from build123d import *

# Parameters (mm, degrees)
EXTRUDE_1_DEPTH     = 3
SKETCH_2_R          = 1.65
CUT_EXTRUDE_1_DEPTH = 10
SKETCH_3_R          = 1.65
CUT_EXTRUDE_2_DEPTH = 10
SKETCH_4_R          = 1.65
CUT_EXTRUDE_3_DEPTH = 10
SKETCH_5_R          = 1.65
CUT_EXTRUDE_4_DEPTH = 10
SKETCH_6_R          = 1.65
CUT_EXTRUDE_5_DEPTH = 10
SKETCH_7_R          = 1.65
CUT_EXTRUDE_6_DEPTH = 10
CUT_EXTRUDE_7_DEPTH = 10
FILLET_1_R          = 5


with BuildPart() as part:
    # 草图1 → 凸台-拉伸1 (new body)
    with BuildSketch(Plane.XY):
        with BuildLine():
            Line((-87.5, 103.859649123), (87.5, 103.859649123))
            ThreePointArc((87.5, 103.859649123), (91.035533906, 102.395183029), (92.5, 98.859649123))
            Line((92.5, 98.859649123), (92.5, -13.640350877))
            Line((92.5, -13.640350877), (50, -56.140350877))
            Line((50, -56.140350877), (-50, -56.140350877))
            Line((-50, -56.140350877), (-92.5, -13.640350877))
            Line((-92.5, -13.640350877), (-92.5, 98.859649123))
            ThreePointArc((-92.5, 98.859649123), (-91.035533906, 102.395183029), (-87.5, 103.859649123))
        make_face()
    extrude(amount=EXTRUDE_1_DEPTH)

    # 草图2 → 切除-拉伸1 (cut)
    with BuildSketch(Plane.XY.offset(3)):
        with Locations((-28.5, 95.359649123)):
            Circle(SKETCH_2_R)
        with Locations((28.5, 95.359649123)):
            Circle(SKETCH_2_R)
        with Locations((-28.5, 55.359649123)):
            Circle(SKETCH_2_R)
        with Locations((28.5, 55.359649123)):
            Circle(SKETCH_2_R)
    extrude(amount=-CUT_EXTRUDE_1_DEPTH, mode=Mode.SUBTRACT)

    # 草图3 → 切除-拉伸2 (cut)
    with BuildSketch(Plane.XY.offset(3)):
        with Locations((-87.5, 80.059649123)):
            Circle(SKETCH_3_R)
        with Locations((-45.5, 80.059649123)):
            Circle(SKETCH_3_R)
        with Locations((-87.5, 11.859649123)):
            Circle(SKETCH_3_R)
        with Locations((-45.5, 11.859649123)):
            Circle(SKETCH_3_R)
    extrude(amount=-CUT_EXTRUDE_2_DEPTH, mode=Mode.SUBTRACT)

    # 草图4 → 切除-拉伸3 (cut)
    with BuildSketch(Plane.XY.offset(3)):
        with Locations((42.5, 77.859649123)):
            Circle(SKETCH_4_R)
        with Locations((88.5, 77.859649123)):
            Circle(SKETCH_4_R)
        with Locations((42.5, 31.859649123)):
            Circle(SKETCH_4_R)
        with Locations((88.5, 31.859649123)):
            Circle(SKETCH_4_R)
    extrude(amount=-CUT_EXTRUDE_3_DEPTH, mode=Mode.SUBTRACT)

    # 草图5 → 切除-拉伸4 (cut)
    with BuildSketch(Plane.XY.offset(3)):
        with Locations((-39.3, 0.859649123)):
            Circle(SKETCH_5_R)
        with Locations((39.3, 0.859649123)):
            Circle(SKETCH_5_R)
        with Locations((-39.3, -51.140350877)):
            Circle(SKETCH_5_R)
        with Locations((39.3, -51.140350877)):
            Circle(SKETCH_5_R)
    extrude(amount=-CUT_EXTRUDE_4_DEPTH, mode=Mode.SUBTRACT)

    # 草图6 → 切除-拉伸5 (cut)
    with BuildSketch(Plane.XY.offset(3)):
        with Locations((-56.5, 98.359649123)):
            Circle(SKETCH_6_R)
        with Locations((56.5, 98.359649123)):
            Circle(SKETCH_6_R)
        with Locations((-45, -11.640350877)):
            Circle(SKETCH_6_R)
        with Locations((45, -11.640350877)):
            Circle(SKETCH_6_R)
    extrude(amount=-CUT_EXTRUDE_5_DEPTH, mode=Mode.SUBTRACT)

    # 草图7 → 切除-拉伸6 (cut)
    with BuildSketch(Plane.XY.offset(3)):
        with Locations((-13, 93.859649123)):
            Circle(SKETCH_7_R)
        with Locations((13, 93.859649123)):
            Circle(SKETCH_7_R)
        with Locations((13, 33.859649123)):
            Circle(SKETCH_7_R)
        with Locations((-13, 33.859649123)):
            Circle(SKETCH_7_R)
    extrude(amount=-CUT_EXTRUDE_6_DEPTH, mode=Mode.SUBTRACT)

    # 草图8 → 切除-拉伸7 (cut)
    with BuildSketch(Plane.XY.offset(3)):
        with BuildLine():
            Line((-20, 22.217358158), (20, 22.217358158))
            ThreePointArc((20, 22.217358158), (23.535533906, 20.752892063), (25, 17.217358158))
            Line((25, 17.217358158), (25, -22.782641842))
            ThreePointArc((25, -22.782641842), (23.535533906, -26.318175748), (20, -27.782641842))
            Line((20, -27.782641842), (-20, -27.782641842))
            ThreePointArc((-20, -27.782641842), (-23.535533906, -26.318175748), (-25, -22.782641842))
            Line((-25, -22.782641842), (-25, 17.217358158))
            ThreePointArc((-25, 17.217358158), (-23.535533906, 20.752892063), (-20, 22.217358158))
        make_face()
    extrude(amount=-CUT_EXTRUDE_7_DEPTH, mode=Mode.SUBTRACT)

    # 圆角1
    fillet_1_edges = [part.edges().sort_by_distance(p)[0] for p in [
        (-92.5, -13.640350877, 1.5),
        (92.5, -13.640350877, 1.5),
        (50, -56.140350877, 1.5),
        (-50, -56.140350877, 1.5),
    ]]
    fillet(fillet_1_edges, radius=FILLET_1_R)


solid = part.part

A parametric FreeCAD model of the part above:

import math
import FreeCAD as App
import Part
import Sketcher

V = App.Vector


def edges_at(feature, points):
    """Names of the edges that pass closest to the given points."""
    edges = feature.Shape.Edges
    near = lambda p: min(range(len(edges)), key=lambda i: edges[i].distToShape(Part.Vertex(*p))[0])
    return sorted({f"Edge{near(p) + 1}" for p in points})

doc = App.newDocument("Part")
body = doc.addObject("PartDesign::Body", "Body")

# Sketch on XY plane
sketch1 = doc.addObject("Sketcher::SketchObject", "Sketch")
body.addObject(sketch1)
sketch1.AttachmentSupport = (doc.XY_Plane, [""])
sketch1.MapMode = "FlatFace"
sketch1.addGeometry([
    Part.LineSegment(V(88, 104, 0), V(-88, 104, 0)),  # 0
    Part.ArcOfCircle(Part.Circle(V(-88, 99, 0), V(0, 0, 1), 5), math.radians(90), math.radians(180)),  # 1
    Part.LineSegment(V(-92, 99, 0), V(-92, -14, 0)),  # 2
    Part.LineSegment(V(-92, -14, 0), V(-50, -56, 0)),  # 3
    Part.LineSegment(V(-50, -56, 0), V(50, -56, 0)),  # 4
    Part.LineSegment(V(50, -56, 0), V(92, -14, 0)),  # 5
    Part.LineSegment(V(92, -14, 0), V(92, 99, 0)),  # 6
    Part.ArcOfCircle(Part.Circle(V(88, 99, 0), V(0, 0, 1), 5), math.radians(0), math.radians(90)),  # 7
], False)
sketch1.addConstraint([
    Sketcher.Constraint("Tangent", 0, 2, 1, 1),
    Sketcher.Constraint("Tangent", 1, 2, 2, 1),
    Sketcher.Constraint("Coincident", 2, 2, 3, 1),
    Sketcher.Constraint("Coincident", 3, 2, 4, 1),
    Sketcher.Constraint("Coincident", 4, 2, 5, 1),
    Sketcher.Constraint("Coincident", 5, 2, 6, 1),
    Sketcher.Constraint("Tangent", 6, 2, 7, 1),
    Sketcher.Constraint("Tangent", 7, 2, 0, 1),
    Sketcher.Constraint("Horizontal", 0),
    Sketcher.Constraint("Vertical", 2),
    Sketcher.Constraint("Horizontal", 4),
    Sketcher.Constraint("Vertical", 6),
    Sketcher.Constraint("Equal", 1, 7),
    Sketcher.Constraint("Symmetric", 2, 2, 5, 2, -2),
    Sketcher.Constraint("Perpendicular", 3, 5),
    Sketcher.Constraint("Equal", 3, 5),
    Sketcher.Constraint("Radius", 1, 5.0),
    Sketcher.Constraint("DistanceX", 0, 2, 0, 1, 175.0),
    Sketcher.Constraint("DistanceX", 4, 1, 4, 2, 100.0),
    Sketcher.Constraint("DistanceY", 2, 2, 2, 1, 112.5),
    Sketcher.Constraint("DistanceY", -1, 1, 1, 3, 98.859649),
])
pad1 = doc.addObject("PartDesign::Pad", "Pad")
body.addObject(pad1)
pad1.Profile = sketch1
pad1.Length = 3

# Sketch on XY plane
sketch2 = doc.addObject("Sketcher::SketchObject", "Sketch001")
body.addObject(sketch2)
sketch2.AttachmentSupport = (doc.XY_Plane, [""])
sketch2.MapMode = "FlatFace"
sketch2.AttachmentOffset = App.Placement(V(0, 0, 3), App.Rotation())
sketch2.addGeometry([
    Part.Circle(V(-28.5, 95.4, 0), V(0, 0, 1), 1.6),
    Part.Circle(V(28.5, 95.4, 0), V(0, 0, 1), 1.6),
    Part.Circle(V(-28.5, 55.4, 0), V(0, 0, 1), 1.6),
    Part.Circle(V(28.5, 55.4, 0), V(0, 0, 1), 1.6),
], False)
sketch2.addConstraint([
    Sketcher.Constraint("Equal", 0, 1),
    Sketcher.Constraint("Equal", 1, 2),
    Sketcher.Constraint("Equal", 2, 3),
    Sketcher.Constraint("Symmetric", 0, 3, 1, 3, -2),
    Sketcher.Constraint("Symmetric", 2, 3, 3, 3, -2),
    Sketcher.Constraint("Vertical", 0, 3, 2, 3),
    Sketcher.Constraint("Diameter", 0, 3.3),
    Sketcher.Constraint("DistanceX", 0, 3, 1, 3, 57.0),
    Sketcher.Constraint("DistanceY", 2, 3, 0, 3, 40.0),
    Sketcher.Constraint("DistanceY", -1, 1, 0, 3, 95.359649),
])
pocket1 = doc.addObject("PartDesign::Pocket", "Pocket")
body.addObject(pocket1)
pocket1.Profile = sketch2
pocket1.Length = 10

# Sketch on XY plane
sketch3 = doc.addObject("Sketcher::SketchObject", "Sketch002")
body.addObject(sketch3)
sketch3.AttachmentSupport = (doc.XY_Plane, [""])
sketch3.MapMode = "FlatFace"
sketch3.AttachmentOffset = App.Placement(V(0, 0, 3), App.Rotation())
sketch3.addGeometry([
    Part.Circle(V(-87.5, 80.1, 0), V(0, 0, 1), 1.6),
    Part.Circle(V(-45.5, 80.1, 0), V(0, 0, 1), 1.6),
    Part.Circle(V(-87.5, 11.9, 0), V(0, 0, 1), 1.6),
    Part.Circle(V(-45.5, 11.9, 0), V(0, 0, 1), 1.6),
], False)
sketch3.addConstraint([
    Sketcher.Constraint("Equal", 0, 1),
    Sketcher.Constraint("Equal", 1, 2),
    Sketcher.Constraint("Equal", 2, 3),
    Sketcher.Constraint("Horizontal", 0, 3, 1, 3),
    Sketcher.Constraint("Horizontal", 2, 3, 3, 3),
    Sketcher.Constraint("Vertical", 0, 3, 2, 3),
    Sketcher.Constraint("Vertical", 1, 3, 3, 3),
    Sketcher.Constraint("Diameter", 0, 3.3),
    Sketcher.Constraint("DistanceX", 0, 3, 1, 3, 42.0),
    Sketcher.Constraint("DistanceX", 0, 3, -1, 1, 87.5),
    Sketcher.Constraint("DistanceY", 2, 3, 0, 3, 68.2),
    Sketcher.Constraint("DistanceY", -1, 1, 0, 3, 80.059649),
])
pocket2 = doc.addObject("PartDesign::Pocket", "Pocket001")
body.addObject(pocket2)
pocket2.Profile = sketch3
pocket2.Length = 10

# Sketch on XY plane
sketch4 = doc.addObject("Sketcher::SketchObject", "Sketch003")
body.addObject(sketch4)
sketch4.AttachmentSupport = (doc.XY_Plane, [""])
sketch4.MapMode = "FlatFace"
sketch4.AttachmentOffset = App.Placement(V(0, 0, 3), App.Rotation())
sketch4.addGeometry([
    Part.Circle(V(42.5, 77.9, 0), V(0, 0, 1), 1.6),
    Part.Circle(V(88.5, 77.9, 0), V(0, 0, 1), 1.6),
    Part.Circle(V(42.5, 31.9, 0), V(0, 0, 1), 1.6),
    Part.Circle(V(88.5, 31.9, 0), V(0, 0, 1), 1.6),
], False)
sketch4.addConstraint([
    Sketcher.Constraint("Equal", 0, 1),
    Sketcher.Constraint("Equal", 1, 2),
    Sketcher.Constraint("Equal", 2, 3),
    Sketcher.Constraint("Horizontal", 0, 3, 1, 3),
    Sketcher.Constraint("Horizontal", 2, 3, 3, 3),
    Sketcher.Constraint("Vertical", 0, 3, 2, 3),
    Sketcher.Constraint("Vertical", 1, 3, 3, 3),
    Sketcher.Constraint("Diameter", 0, 3.3),
    Sketcher.Constraint("DistanceX", 0, 3, 1, 3, 46.0),
    Sketcher.Constraint("DistanceY", 2, 3, 0, 3, 46.0),
    Sketcher.Constraint("DistanceX", -1, 1, 0, 3, 42.5),
    Sketcher.Constraint("DistanceY", -1, 1, 0, 3, 77.859649),
])
pocket3 = doc.addObject("PartDesign::Pocket", "Pocket002")
body.addObject(pocket3)
pocket3.Profile = sketch4
pocket3.Length = 10

# Sketch on XY plane
sketch5 = doc.addObject("Sketcher::SketchObject", "Sketch004")
body.addObject(sketch5)
sketch5.AttachmentSupport = (doc.XY_Plane, [""])
sketch5.MapMode = "FlatFace"
sketch5.AttachmentOffset = App.Placement(V(0, 0, 3), App.Rotation())
sketch5.addGeometry([
    Part.Circle(V(-39.3, 0.9, 0), V(0, 0, 1), 1.6),
    Part.Circle(V(39.3, 0.9, 0), V(0, 0, 1), 1.6),
    Part.Circle(V(-39.3, -51.1, 0), V(0, 0, 1), 1.6),
    Part.Circle(V(39.3, -51.1, 0), V(0, 0, 1), 1.6),
], False)
sketch5.addConstraint([
    Sketcher.Constraint("Equal", 0, 1),
    Sketcher.Constraint("Equal", 1, 2),
    Sketcher.Constraint("Equal", 2, 3),
    Sketcher.Constraint("Symmetric", 0, 3, 1, 3, -2),
    Sketcher.Constraint("Symmetric", 2, 3, 3, 3, -2),
    Sketcher.Constraint("Vertical", 0, 3, 2, 3),
    Sketcher.Constraint("Diameter", 0, 3.3),
    Sketcher.Constraint("DistanceY", 2, 3, 0, 3, 52.0),
    Sketcher.Constraint("DistanceX", 0, 3, -1, 1, 39.3),
    Sketcher.Constraint("DistanceY", -1, 1, 0, 3, 0.859649),
])
pocket4 = doc.addObject("PartDesign::Pocket", "Pocket003")
body.addObject(pocket4)
pocket4.Profile = sketch5
pocket4.Length = 10

# Sketch on XY plane
sketch6 = doc.addObject("Sketcher::SketchObject", "Sketch005")
body.addObject(sketch6)
sketch6.AttachmentSupport = (doc.XY_Plane, [""])
sketch6.MapMode = "FlatFace"
sketch6.AttachmentOffset = App.Placement(V(0, 0, 3), App.Rotation())
sketch6.addGeometry([
    Part.Circle(V(-56.5, 98.4, 0), V(0, 0, 1), 1.6),
    Part.Circle(V(56.5, 98.4, 0), V(0, 0, 1), 1.6),
    Part.Circle(V(-45, -11.6, 0), V(0, 0, 1), 1.6),
    Part.Circle(V(45, -11.6, 0), V(0, 0, 1), 1.6),
], False)
sketch6.addConstraint([
    Sketcher.Constraint("Equal", 0, 1),
    Sketcher.Constraint("Equal", 1, 2),
    Sketcher.Constraint("Equal", 2, 3),
    Sketcher.Constraint("Symmetric", 0, 3, 1, 3, -2),
    Sketcher.Constraint("Symmetric", 2, 3, 3, 3, -2),
    Sketcher.Constraint("Diameter", 0, 3.3),
    Sketcher.Constraint("DistanceX", 2, 3, -1, 1, 45.0),
    Sketcher.Constraint("DistanceX", 0, 3, 1, 3, 113.0),
    Sketcher.Constraint("DistanceY", 2, 3, 0, 3, 110.0),
    Sketcher.Constraint("DistanceY", -1, 1, 0, 3, 98.359649),
])
pocket5 = doc.addObject("PartDesign::Pocket", "Pocket004")
body.addObject(pocket5)
pocket5.Profile = sketch6
pocket5.Length = 10

# Sketch on XY plane
sketch7 = doc.addObject("Sketcher::SketchObject", "Sketch006")
body.addObject(sketch7)
sketch7.AttachmentSupport = (doc.XY_Plane, [""])
sketch7.MapMode = "FlatFace"
sketch7.AttachmentOffset = App.Placement(V(0, 0, 3), App.Rotation())
sketch7.addGeometry([
    Part.Circle(V(-13, 93.9, 0), V(0, 0, 1), 1.6),
    Part.Circle(V(13, 93.9, 0), V(0, 0, 1), 1.6),
    Part.Circle(V(13, 33.9, 0), V(0, 0, 1), 1.6),
    Part.Circle(V(-13, 33.9, 0), V(0, 0, 1), 1.6),
], False)
sketch7.addConstraint([
    Sketcher.Constraint("Equal", 0, 1),
    Sketcher.Constraint("Equal", 1, 2),
    Sketcher.Constraint("Equal", 2, 3),
    Sketcher.Constraint("Symmetric", 0, 3, 1, 3, -2),
    Sketcher.Constraint("Symmetric", 2, 3, 3, 3, -2),
    Sketcher.Constraint("Vertical", 1, 3, 2, 3),
    Sketcher.Constraint("Diameter", 0, 3.3),
    Sketcher.Constraint("DistanceX", 0, 3, -1, 1, 13.0),
    Sketcher.Constraint("DistanceY", 2, 3, 1, 3, 60.0),
    Sketcher.Constraint("DistanceY", -1, 1, 0, 3, 93.859649),
])
pocket6 = doc.addObject("PartDesign::Pocket", "Pocket005")
body.addObject(pocket6)
pocket6.Profile = sketch7
pocket6.Length = 10

# Sketch on XY plane
sketch8 = doc.addObject("Sketcher::SketchObject", "Sketch007")
body.addObject(sketch8)
sketch8.AttachmentSupport = (doc.XY_Plane, [""])
sketch8.MapMode = "FlatFace"
sketch8.AttachmentOffset = App.Placement(V(0, 0, 3), App.Rotation())
sketch8.addGeometry([
    Part.LineSegment(V(20, 22, 0), V(-20, 22, 0)),  # 0
    Part.ArcOfCircle(Part.Circle(V(-20, 17, 0), V(0, 0, 1), 5), math.radians(90), math.radians(180)),  # 1
    Part.LineSegment(V(-25, 17, 0), V(-25, -23, 0)),  # 2
    Part.ArcOfCircle(Part.Circle(V(-20, -23, 0), V(0, 0, 1), 5), math.radians(180), math.radians(270)),  # 3
    Part.LineSegment(V(-20, -28, 0), V(20, -28, 0)),  # 4
    Part.ArcOfCircle(Part.Circle(V(20, -23, 0), V(0, 0, 1), 5), math.radians(-90), math.radians(0)),  # 5
    Part.LineSegment(V(25, -23, 0), V(25, 17, 0)),  # 6
    Part.ArcOfCircle(Part.Circle(V(20, 17, 0), V(0, 0, 1), 5), math.radians(0), math.radians(90)),  # 7
], False)
sketch8.addConstraint([
    Sketcher.Constraint("Tangent", 0, 2, 1, 1),
    Sketcher.Constraint("Tangent", 1, 2, 2, 1),
    Sketcher.Constraint("Tangent", 2, 2, 3, 1),
    Sketcher.Constraint("Tangent", 3, 2, 4, 1),
    Sketcher.Constraint("Tangent", 4, 2, 5, 1),
    Sketcher.Constraint("Tangent", 5, 2, 6, 1),
    Sketcher.Constraint("Tangent", 6, 2, 7, 1),
    Sketcher.Constraint("Tangent", 7, 2, 0, 1),
    Sketcher.Constraint("Horizontal", 0),
    Sketcher.Constraint("Vertical", 2),
    Sketcher.Constraint("Horizontal", 4),
    Sketcher.Constraint("Vertical", 6),
    Sketcher.Constraint("Equal", 1, 3),
    Sketcher.Constraint("Equal", 3, 5),
    Sketcher.Constraint("Equal", 5, 7),
    Sketcher.Constraint("Equal", 4, 2),
    Sketcher.Constraint("Radius", 1, 5.0),
    Sketcher.Constraint("DistanceX", 0, 2, 0, 1, 40.0),
    Sketcher.Constraint("DistanceX", 1, 3, -1, 1, 20.0),
    Sketcher.Constraint("DistanceY", -1, 1, 1, 3, 17.217358),
])
pocket7 = doc.addObject("PartDesign::Pocket", "Pocket006")
body.addObject(pocket7)
pocket7.Profile = sketch8
pocket7.Length = 10
doc.recompute()

fillet = doc.addObject("PartDesign::Fillet", "Fillet")
body.addObject(fillet)
fillet.Base = (pocket7, edges_at(pocket7, [
    (-92.5, -13.64, 1.5),
    (92.5, -13.64, 1.5),
    (50, -56.14, 1.5),
    (-50, -56.14, 1.5),
]))
fillet.Radius = 5

doc.recompute()
